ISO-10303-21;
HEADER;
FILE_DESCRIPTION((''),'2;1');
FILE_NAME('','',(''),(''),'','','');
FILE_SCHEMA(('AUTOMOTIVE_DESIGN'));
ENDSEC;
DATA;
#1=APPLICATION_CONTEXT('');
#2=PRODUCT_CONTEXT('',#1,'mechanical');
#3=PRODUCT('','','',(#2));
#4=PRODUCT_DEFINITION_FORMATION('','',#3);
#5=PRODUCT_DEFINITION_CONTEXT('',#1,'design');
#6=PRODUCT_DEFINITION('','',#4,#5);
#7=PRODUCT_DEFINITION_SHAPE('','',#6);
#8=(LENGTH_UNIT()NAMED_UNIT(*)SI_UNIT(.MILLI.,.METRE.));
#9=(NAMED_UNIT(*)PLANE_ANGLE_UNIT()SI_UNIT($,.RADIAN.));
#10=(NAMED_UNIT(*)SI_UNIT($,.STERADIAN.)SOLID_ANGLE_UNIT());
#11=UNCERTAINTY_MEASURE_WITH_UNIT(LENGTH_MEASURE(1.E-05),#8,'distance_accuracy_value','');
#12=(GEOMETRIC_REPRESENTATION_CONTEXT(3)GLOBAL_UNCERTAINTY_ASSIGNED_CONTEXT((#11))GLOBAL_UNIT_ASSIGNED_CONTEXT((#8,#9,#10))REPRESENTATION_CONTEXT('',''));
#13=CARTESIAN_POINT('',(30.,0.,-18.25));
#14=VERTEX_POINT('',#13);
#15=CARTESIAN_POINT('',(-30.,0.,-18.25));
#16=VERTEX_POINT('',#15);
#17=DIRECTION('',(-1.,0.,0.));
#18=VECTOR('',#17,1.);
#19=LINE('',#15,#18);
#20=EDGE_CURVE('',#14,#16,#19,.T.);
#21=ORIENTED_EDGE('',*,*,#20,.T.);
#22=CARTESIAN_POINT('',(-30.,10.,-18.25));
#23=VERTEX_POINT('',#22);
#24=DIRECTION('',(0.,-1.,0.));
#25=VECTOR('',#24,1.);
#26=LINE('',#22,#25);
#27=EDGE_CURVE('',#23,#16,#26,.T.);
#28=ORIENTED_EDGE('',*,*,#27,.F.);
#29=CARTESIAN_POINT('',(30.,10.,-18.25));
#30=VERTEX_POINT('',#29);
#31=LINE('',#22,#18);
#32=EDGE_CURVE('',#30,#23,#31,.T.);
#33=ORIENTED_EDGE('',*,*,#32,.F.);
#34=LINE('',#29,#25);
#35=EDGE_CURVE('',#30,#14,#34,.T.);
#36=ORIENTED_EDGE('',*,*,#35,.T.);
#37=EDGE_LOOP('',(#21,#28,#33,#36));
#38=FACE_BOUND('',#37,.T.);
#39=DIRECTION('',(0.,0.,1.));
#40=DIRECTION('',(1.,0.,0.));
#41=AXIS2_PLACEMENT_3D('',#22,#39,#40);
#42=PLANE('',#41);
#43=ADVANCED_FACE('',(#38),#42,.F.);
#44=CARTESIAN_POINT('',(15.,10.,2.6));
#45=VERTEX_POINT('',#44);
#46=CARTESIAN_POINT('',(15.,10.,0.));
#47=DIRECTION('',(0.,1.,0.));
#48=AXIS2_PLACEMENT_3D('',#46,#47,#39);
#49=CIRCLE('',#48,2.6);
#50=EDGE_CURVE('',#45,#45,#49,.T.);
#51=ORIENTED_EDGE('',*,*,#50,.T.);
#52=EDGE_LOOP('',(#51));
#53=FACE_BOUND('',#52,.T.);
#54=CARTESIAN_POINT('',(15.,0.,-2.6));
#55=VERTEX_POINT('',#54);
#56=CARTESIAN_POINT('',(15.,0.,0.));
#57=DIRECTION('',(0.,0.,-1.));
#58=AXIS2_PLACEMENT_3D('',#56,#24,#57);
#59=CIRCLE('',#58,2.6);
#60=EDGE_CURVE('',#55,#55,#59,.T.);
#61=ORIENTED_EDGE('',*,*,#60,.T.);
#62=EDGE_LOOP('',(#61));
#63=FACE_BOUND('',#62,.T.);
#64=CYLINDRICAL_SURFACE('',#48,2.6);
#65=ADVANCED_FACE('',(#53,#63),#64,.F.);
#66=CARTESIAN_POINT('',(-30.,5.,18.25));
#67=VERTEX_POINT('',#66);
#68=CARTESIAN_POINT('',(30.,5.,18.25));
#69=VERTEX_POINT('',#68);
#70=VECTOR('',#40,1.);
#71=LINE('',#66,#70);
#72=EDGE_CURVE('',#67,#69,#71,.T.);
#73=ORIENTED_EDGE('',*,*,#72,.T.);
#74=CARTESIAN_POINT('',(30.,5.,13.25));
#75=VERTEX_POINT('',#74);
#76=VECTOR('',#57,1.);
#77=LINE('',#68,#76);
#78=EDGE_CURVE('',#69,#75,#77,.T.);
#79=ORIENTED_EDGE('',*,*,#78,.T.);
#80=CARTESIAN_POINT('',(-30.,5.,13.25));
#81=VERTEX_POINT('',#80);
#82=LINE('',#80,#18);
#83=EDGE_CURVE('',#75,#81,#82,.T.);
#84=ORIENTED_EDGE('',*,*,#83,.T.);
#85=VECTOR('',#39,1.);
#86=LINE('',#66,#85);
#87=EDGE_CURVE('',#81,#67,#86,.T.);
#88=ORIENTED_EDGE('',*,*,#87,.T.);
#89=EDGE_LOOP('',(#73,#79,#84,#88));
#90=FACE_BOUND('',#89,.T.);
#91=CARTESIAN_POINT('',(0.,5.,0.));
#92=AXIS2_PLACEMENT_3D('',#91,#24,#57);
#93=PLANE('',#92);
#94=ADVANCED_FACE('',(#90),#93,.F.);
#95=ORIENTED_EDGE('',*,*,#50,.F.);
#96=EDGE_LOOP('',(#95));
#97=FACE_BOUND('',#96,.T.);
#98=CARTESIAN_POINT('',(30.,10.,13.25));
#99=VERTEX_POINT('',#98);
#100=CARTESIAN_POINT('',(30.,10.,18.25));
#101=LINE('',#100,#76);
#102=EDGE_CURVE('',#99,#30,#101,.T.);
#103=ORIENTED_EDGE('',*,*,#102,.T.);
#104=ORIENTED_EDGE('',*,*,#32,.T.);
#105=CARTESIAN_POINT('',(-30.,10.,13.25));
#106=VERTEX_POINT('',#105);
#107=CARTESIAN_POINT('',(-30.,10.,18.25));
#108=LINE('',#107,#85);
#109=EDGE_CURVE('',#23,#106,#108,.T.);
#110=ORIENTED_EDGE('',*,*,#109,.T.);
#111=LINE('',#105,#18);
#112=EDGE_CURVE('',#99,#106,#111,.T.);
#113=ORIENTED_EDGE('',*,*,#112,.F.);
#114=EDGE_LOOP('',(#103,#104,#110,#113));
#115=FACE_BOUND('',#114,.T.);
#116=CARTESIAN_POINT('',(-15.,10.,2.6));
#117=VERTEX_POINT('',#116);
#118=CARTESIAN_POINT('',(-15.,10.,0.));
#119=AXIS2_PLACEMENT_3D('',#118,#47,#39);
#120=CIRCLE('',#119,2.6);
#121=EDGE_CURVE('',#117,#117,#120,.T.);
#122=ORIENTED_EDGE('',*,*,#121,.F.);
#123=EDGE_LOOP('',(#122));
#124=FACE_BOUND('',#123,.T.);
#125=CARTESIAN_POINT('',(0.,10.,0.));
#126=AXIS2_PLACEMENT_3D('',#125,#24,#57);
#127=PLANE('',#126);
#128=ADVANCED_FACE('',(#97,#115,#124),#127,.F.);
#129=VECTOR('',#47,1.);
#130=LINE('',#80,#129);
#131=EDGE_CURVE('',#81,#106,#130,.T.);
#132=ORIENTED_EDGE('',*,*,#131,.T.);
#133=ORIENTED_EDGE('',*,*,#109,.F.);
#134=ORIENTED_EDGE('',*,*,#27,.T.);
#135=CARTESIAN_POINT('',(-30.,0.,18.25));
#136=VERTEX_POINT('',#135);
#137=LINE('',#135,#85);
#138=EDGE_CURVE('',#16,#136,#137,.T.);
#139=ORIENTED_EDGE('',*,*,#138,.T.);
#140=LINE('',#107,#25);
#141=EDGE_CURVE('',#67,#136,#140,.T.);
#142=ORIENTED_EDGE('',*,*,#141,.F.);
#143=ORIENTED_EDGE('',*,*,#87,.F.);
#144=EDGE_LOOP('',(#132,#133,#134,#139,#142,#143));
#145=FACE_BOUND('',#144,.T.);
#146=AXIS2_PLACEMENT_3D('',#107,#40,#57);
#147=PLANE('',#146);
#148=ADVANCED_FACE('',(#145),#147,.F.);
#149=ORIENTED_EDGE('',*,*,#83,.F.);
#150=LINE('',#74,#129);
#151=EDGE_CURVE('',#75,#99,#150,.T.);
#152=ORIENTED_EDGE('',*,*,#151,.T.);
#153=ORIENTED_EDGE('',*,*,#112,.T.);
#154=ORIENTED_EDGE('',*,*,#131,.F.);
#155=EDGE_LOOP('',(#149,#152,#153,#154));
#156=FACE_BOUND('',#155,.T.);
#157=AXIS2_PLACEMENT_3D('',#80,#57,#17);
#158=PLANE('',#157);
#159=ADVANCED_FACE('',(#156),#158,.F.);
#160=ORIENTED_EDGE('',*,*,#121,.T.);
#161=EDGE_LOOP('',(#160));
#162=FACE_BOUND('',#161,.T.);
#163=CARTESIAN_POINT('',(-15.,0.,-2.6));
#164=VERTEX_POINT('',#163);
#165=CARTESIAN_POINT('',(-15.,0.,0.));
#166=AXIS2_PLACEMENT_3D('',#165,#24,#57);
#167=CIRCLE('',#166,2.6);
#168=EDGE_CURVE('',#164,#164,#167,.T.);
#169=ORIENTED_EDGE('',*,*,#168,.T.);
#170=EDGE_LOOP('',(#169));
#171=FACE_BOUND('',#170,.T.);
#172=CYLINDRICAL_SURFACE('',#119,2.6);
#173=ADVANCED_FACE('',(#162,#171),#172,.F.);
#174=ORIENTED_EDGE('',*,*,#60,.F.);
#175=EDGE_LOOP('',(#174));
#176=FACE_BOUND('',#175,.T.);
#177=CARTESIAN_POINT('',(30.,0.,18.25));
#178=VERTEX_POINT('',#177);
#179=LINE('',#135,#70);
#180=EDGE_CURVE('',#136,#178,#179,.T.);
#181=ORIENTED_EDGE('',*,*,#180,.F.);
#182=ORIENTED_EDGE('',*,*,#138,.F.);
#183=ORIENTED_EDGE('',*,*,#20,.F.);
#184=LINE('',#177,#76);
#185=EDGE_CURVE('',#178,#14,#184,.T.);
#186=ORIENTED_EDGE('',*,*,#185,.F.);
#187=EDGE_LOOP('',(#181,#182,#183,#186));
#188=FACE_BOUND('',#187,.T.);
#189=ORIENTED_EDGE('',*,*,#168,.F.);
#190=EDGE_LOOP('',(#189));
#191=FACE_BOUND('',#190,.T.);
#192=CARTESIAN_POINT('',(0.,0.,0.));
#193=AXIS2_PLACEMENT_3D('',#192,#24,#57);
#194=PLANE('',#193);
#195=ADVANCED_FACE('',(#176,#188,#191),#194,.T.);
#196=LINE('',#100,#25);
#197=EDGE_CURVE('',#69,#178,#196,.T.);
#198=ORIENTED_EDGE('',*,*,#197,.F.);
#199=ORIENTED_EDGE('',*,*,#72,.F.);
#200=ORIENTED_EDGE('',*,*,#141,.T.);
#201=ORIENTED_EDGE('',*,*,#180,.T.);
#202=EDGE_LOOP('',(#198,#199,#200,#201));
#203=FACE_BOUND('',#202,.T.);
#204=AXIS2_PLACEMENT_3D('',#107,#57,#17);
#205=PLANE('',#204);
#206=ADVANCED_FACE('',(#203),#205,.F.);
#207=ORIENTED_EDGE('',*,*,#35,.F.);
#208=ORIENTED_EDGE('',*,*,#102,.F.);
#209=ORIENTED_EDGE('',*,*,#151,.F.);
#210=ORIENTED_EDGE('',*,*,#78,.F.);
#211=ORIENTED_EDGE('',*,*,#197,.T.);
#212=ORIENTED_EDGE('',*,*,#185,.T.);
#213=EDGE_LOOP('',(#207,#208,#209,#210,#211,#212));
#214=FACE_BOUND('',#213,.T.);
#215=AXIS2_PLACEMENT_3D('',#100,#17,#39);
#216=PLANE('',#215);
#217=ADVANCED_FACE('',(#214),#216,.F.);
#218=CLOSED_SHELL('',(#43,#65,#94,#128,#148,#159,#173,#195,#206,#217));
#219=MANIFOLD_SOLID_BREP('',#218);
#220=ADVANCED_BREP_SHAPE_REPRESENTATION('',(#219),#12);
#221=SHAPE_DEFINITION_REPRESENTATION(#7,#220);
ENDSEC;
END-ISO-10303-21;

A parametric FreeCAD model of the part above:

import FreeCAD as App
import Part
import Sketcher
from FreeCAD import Vector


def add_polygon(sketch, points):
    """Adds a closed chain of lines whose ends are joined by coincident constraints."""
    first, n = sketch.GeometryCount, len(points)
    for a, b in zip(points, points[1:] + points[:1]):
        sketch.addGeometry(Part.LineSegment(App.Vector(*a, 0), App.Vector(*b, 0)), False)
    for i in range(n):
        sketch.addConstraint(Sketcher.Constraint("Coincident", first + i, 2, first + (i + 1) % n, 1))

doc = App.newDocument("Part")
body = doc.addObject("PartDesign::Body", "Body")

sketch1 = body.newObject("Sketcher::SketchObject", "Sketch")
sketch1.AttachmentSupport = (doc.getObject("XZ_Plane"), [""])
sketch1.MapMode = "FlatFace"
add_polygon(sketch1, [(-30, -18.25), (-30, 18.25), (30, 18.25), (30, -18.25)])
sketch1.addConstraint(Sketcher.Constraint("Vertical", 0))
sketch1.addConstraint(Sketcher.Constraint("Horizontal", 1))
sketch1.addConstraint(Sketcher.Constraint("Vertical", 2))
sketch1.addConstraint(Sketcher.Constraint("Horizontal", 3))
sketch1.addConstraint(Sketcher.Constraint("Symmetric", 0, 2, 2, 2, -1, 1))
sketch1.addConstraint(Sketcher.Constraint("DistanceX", 1, 1, 1, 2, 60.0))
sketch1.addConstraint(Sketcher.Constraint("DistanceY", 0, 1, 0, 2, 36.5))
pad1 = body.newObject("PartDesign::Pad", "Pad")
pad1.Profile = sketch1
pad1.Length = 10
pad1.Reversed = True

sketch2 = body.newObject("Sketcher::SketchObject", "Sketch001")
sketch2.AttachmentSupport = (doc.getObject("XZ_Plane"), [""])
sketch2.MapMode = "FlatFace"
sketch2.AttachmentOffset = App.Placement(Vector(0, 0, -10), App.Rotation())
add_polygon(sketch2, [(-30, 13.25), (-30, 18.25), (30, 18.25), (30, 13.25)])
sketch2.addConstraint(Sketcher.Constraint("Vertical", 0))
sketch2.addConstraint(Sketcher.Constraint("Horizontal", 1))
sketch2.addConstraint(Sketcher.Constraint("Vertical", 2))
sketch2.addConstraint(Sketcher.Constraint("Horizontal", 3))
sketch2.addConstraint(Sketcher.Constraint("DistanceX", 1, 1, 1, 2, 60.0))
sketch2.addConstraint(Sketcher.Constraint("DistanceY", 0, 1, 0, 2, 5.0))
sketch2.addConstraint(Sketcher.Constraint("DistanceX", 0, 2, -1, 1, 30.0))
sketch2.addConstraint(Sketcher.Constraint("DistanceY", -1, 1, 0, 2, 18.25))
pocket1 = body.newObject("PartDesign::Pocket", "Pocket")
pocket1.Profile = sketch2
pocket1.Length = 5
pocket1.Reversed = True

sketch3 = body.newObject("Sketcher::SketchObject", "Sketch002")
sketch3.AttachmentSupport = (doc.getObject("XZ_Plane"), [""])
sketch3.MapMode = "FlatFace"
sketch3.AttachmentOffset = App.Placement(Vector(0, 0, -10), App.Rotation())
sketch3.addGeometry(Part.Circle(Vector(-15, 0, 0), Vector(0, 0, 1), 2.6), False)
sketch3.addGeometry(Part.Circle(Vector(15, 0, 0), Vector(0, 0, 1), 2.6), False)
sketch3.addConstraint(Sketcher.Constraint("Equal", 0, 1))
sketch3.addConstraint(Sketcher.Constraint("Symmetric", 0, 3, 1, 3, -1, 1))
sketch3.addConstraint(Sketcher.Constraint("PointOnObject", 0, 3, -1))
sketch3.addConstraint(Sketcher.Constraint("Diameter", 0, 5.2))
sketch3.addConstraint(Sketcher.Constraint("DistanceX", 0, 3, -1, 1, 15.0))
doc.recompute()
hole = body.newObject("PartDesign::Hole", "Hole")
hole.Profile = sketch3
hole.ThreadType = "None"
hole.Diameter = 5.2
hole.DepthType = "Dimension"
hole.Depth = 46
hole.DrillPoint = "Angled"
hole.DrillPointAngle = 118
hole.Reversed = True

doc.recompute()
